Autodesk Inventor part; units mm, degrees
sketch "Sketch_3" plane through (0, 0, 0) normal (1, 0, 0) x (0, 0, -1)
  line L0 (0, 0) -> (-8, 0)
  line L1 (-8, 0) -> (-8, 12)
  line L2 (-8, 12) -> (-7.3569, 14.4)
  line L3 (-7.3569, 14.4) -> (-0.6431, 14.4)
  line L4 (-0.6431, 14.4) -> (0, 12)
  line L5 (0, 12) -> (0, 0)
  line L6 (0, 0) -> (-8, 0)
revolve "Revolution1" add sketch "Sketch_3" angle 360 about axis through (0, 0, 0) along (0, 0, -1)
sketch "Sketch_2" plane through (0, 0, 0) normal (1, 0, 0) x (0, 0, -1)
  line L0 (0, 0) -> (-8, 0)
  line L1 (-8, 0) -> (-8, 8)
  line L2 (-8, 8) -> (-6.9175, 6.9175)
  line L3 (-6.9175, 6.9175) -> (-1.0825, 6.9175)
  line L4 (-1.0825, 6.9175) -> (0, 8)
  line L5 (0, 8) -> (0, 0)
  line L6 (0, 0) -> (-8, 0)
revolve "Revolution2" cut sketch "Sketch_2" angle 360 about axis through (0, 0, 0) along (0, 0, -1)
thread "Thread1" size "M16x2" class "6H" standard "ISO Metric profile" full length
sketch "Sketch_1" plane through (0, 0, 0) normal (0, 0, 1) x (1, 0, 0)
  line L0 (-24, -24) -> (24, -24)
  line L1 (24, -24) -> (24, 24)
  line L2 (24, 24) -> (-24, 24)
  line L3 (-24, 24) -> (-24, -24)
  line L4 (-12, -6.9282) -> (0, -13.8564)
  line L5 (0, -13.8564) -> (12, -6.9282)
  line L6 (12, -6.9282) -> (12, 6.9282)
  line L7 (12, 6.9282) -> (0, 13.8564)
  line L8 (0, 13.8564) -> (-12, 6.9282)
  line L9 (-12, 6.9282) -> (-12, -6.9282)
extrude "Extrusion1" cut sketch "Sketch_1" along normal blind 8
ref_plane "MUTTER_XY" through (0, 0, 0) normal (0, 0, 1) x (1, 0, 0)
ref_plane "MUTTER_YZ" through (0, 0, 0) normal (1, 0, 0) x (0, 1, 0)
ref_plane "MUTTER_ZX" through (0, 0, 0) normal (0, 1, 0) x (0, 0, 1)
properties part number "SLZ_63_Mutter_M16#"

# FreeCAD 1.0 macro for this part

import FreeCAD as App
import Part
import Sketcher
Q = App.Units.Quantity

doc = App.newDocument("Part")
body = doc.addObject("PartDesign::Body", "Body")

sketch1 = body.newObject("Sketcher::SketchObject", "Sketch")
sketch1.AttachmentSupport = (doc.getObject("YZ_Plane"), [""])
sketch1.MapMode = "FlatFace"
sketch1.addGeometry(Part.LineSegment(App.Vector(0, 8, 0), App.Vector(0, 0, 0)), False)
sketch1.addGeometry(Part.LineSegment(App.Vector(0, 0, 0), App.Vector(12, 0, 0)), False)
sketch1.addGeometry(Part.LineSegment(App.Vector(12, 0, 0), App.Vector(14.4, 0.6, 0)), False)
sketch1.addGeometry(Part.LineSegment(App.Vector(14.4, 0.6, 0), App.Vector(14.4, 7.4, 0)), False)
sketch1.addGeometry(Part.LineSegment(App.Vector(14.4, 7.4, 0), App.Vector(12, 8, 0)), False)
sketch1.addGeometry(Part.LineSegment(App.Vector(12, 8, 0), App.Vector(0, 8, 0)), False)
sketch1.addConstraint(Sketcher.Constraint("Coincident", 0, 2, 1, 1))
sketch1.addConstraint(Sketcher.Constraint("Coincident", 1, 2, 2, 1))
sketch1.addConstraint(Sketcher.Constraint("Coincident", 2, 2, 3, 1))
sketch1.addConstraint(Sketcher.Constraint("Coincident", 3, 2, 4, 1))
sketch1.addConstraint(Sketcher.Constraint("Coincident", 4, 2, 5, 1))
sketch1.addConstraint(Sketcher.Constraint("Coincident", 5, 2, 0, 1))
sketch1.addConstraint(Sketcher.Constraint("Vertical", 0))
sketch1.addConstraint(Sketcher.Constraint("Horizontal", 1))
sketch1.addConstraint(Sketcher.Constraint("Vertical", 3))
sketch1.addConstraint(Sketcher.Constraint("Horizontal", 5))
sketch1.addConstraint(Sketcher.Constraint("Coincident", 0, 2, -1, 1))
sketch1.addConstraint(Sketcher.Constraint("Vertical", 1, 2, 4, 2))
sketch1.addConstraint(Sketcher.Constraint("Equal", 2, 4))
sketch1.addConstraint(Sketcher.Constraint("DistanceX", 1, 1, 1, 2, 12.0))
sketch1.addConstraint(Sketcher.Constraint("DistanceY", 0, 2, 0, 1, 8.0))
sketch1.addConstraint(Sketcher.Constraint("Angle", 2, Q("15.0005 deg")))
sketch1.addConstraint(Sketcher.Constraint("DistanceX", -1, 1, 2, 2, 14.4))
revolution = body.newObject("PartDesign::Revolution", "Revolution")
revolution.Profile = sketch1
revolution.ReferenceAxis = (sketch1, ["V_Axis"])
revolution.Angle = 360

sketch2 = body.newObject("Sketcher::SketchObject", "Sketch001")
sketch2.AttachmentSupport = (doc.getObject("YZ_Plane"), [""])
sketch2.MapMode = "FlatFace"
sketch2.addGeometry(Part.LineSegment(App.Vector(0, 8, 0), App.Vector(0, 0, 0)), False)
sketch2.addGeometry(Part.LineSegment(App.Vector(0, 0, 0), App.Vector(8, 0, 0)), False)
sketch2.addGeometry(Part.LineSegment(App.Vector(8, 0, 0), App.Vector(6.9, 1.1, 0)), False)
sketch2.addGeometry(Part.LineSegment(App.Vector(6.9, 1.1, 0), App.Vector(6.9, 6.9, 0)), False)
sketch2.addGeometry(Part.LineSegment(App.Vector(6.9, 6.9, 0), App.Vector(8, 8, 0)), False)
sketch2.addGeometry(Part.LineSegment(App.Vector(8, 8, 0), App.Vector(0, 8, 0)), False)
sketch2.addConstraint(Sketcher.Constraint("Coincident", 0, 2, 1, 1))
sketch2.addConstraint(Sketcher.Constraint("Coincident", 1, 2, 2, 1))
sketch2.addConstraint(Sketcher.Constraint("Coincident", 2, 2, 3, 1))
sketch2.addConstraint(Sketcher.Constraint("Coincident", 3, 2, 4, 1))
sketch2.addConstraint(Sketcher.Constraint("Coincident", 4, 2, 5, 1))
sketch2.addConstraint(Sketcher.Constraint("Coincident", 5, 2, 0, 1))
sketch2.addConstraint(Sketcher.Constraint("Vertical", 0))
sketch2.addConstraint(Sketcher.Constraint("Horizontal", 1))
sketch2.addConstraint(Sketcher.Constraint("Vertical", 3))
sketch2.addConstraint(Sketcher.Constraint("Horizontal", 5))
sketch2.addConstraint(Sketcher.Constraint("Coincident", 0, 2, -1, 1))
sketch2.addConstraint(Sketcher.Constraint("Perpendicular", 2, 4))
sketch2.addConstraint(Sketcher.Constraint("Vertical", 1, 2, 4, 2))
sketch2.addConstraint(Sketcher.Constraint("Equal", 5, 0))
sketch2.addConstraint(Sketcher.Constraint("Equal", 2, 4))
sketch2.addConstraint(Sketcher.Constraint("DistanceX", 1, 1, 1, 2, 8.0))
sketch2.addConstraint(Sketcher.Constraint("DistanceY", 3, 1, 3, 2, 5.835))
groove = body.newObject("PartDesign::Groove", "Groove")
groove.Profile = sketch2
groove.ReferenceAxis = (sketch2, ["V_Axis"])
groove.Angle = 360

sketch3 = body.newObject("Sketcher::SketchObject", "Sketch002")
sketch3.AttachmentSupport = (doc.getObject("XY_Plane"), [""])
sketch3.MapMode = "FlatFace"
sketch3.addGeometry(Part.LineSegment(App.Vector(-24, 24, 0), App.Vector(-24, -24, 0)), False)
sketch3.addGeometry(Part.LineSegment(App.Vector(-24, -24, 0), App.Vector(24, -24, 0)), False)
sketch3.addGeometry(Part.LineSegment(App.Vector(24, -24, 0), App.Vector(24, 24, 0)), False)
sketch3.addGeometry(Part.LineSegment(App.Vector(24, 24, 0), App.Vector(-24, 24, 0)), False)
sketch3.addGeometry(Part.LineSegment(App.Vector(0, -14, 0), App.Vector(-12, -7, 0)), False)
sketch3.addGeometry(Part.LineSegment(App.Vector(-12, -7, 0), App.Vector(-12, 7, 0)), False)
sketch3.addGeometry(Part.LineSegment(App.Vector(-12, 7, 0), App.Vector(0, 14, 0)), False)
sketch3.addGeometry(Part.LineSegment(App.Vector(0, 14, 0), App.Vector(12, 7, 0)), False)
sketch3.addGeometry(Part.LineSegment(App.Vector(12, 7, 0), App.Vector(12, -7, 0)), False)
sketch3.addGeometry(Part.LineSegment(App.Vector(12, -7, 0), App.Vector(0, -14, 0)), False)
sketch3.addConstraint(Sketcher.Constraint("Coincident", 0, 2, 1, 1))
sketch3.addConstraint(Sketcher.Constraint("Coincident", 1, 2, 2, 1))
sketch3.addConstraint(Sketcher.Constraint("Coincident", 2, 2, 3, 1))
sketch3.addConstraint(Sketcher.Constraint("Coincident", 3, 2, 0, 1))
sketch3.addConstraint(Sketcher.Constraint("Coincident", 4, 2, 5, 1))
sketch3.addConstraint(Sketcher.Constraint("Coincident", 5, 2, 6, 1))
sketch3.addConstraint(Sketcher.Constraint("Coincident", 6, 2, 7, 1))
sketch3.addConstraint(Sketcher.Constraint("Coincident", 7, 2, 8, 1))
sketch3.addConstraint(Sketcher.Constraint("Coincident", 8, 2, 9, 1))
sketch3.addConstraint(Sketcher.Constraint("Coincident", 9, 2, 4, 1))
sketch3.addConstraint(Sketcher.Constraint("Vertical", 0))
sketch3.addConstraint(Sketcher.Constraint("Horizontal", 1))
sketch3.addConstraint(Sketcher.Constraint("Vertical", 2))
sketch3.addConstraint(Sketcher.Constraint("Horizontal", 3))
sketch3.addConstraint(Sketcher.Constraint("Vertical", 5))
sketch3.addConstraint(Sketcher.Constraint("Vertical", 8))
sketch3.addConstraint(Sketcher.Constraint("Symmetric", 0, 2, 2, 2, -1, 1))
sketch3.addConstraint(Sketcher.Constraint("Symmetric", 4, 2, 7, 2, -1, 1))
sketch3.addConstraint(Sketcher.Constraint("Symmetric", 6, 2, 9, 2, -1, 1))
sketch3.addConstraint(Sketcher.Constraint("PointOnObject", 6, 2, -2))
sketch3.addConstraint(Sketcher.Constraint("Parallel", 6, 9))
sketch3.addConstraint(Sketcher.Constraint("Horizontal", 5, 2, 7, 2))
sketch3.addConstraint(Sketcher.Constraint("Equal", 3, 0))
sketch3.addConstraint(Sketcher.Constraint("DistanceX", 1, 1, 1, 2, 48.0))
sketch3.addConstraint(Sketcher.Constraint("Angle", 4, Q("150 deg")))
sketch3.addConstraint(Sketcher.Constraint("DistanceX", 4, 2, -1, 1, 12.0))
sketch3.addConstraint(Sketcher.Constraint("DistanceY", 5, 1, 5, 2, 13.8564))
pocket1 = body.newObject("PartDesign::Pocket", "Pocket")
pocket1.Profile = sketch3
pocket1.Length = 8
pocket1.Reversed = True

doc.recompute()
